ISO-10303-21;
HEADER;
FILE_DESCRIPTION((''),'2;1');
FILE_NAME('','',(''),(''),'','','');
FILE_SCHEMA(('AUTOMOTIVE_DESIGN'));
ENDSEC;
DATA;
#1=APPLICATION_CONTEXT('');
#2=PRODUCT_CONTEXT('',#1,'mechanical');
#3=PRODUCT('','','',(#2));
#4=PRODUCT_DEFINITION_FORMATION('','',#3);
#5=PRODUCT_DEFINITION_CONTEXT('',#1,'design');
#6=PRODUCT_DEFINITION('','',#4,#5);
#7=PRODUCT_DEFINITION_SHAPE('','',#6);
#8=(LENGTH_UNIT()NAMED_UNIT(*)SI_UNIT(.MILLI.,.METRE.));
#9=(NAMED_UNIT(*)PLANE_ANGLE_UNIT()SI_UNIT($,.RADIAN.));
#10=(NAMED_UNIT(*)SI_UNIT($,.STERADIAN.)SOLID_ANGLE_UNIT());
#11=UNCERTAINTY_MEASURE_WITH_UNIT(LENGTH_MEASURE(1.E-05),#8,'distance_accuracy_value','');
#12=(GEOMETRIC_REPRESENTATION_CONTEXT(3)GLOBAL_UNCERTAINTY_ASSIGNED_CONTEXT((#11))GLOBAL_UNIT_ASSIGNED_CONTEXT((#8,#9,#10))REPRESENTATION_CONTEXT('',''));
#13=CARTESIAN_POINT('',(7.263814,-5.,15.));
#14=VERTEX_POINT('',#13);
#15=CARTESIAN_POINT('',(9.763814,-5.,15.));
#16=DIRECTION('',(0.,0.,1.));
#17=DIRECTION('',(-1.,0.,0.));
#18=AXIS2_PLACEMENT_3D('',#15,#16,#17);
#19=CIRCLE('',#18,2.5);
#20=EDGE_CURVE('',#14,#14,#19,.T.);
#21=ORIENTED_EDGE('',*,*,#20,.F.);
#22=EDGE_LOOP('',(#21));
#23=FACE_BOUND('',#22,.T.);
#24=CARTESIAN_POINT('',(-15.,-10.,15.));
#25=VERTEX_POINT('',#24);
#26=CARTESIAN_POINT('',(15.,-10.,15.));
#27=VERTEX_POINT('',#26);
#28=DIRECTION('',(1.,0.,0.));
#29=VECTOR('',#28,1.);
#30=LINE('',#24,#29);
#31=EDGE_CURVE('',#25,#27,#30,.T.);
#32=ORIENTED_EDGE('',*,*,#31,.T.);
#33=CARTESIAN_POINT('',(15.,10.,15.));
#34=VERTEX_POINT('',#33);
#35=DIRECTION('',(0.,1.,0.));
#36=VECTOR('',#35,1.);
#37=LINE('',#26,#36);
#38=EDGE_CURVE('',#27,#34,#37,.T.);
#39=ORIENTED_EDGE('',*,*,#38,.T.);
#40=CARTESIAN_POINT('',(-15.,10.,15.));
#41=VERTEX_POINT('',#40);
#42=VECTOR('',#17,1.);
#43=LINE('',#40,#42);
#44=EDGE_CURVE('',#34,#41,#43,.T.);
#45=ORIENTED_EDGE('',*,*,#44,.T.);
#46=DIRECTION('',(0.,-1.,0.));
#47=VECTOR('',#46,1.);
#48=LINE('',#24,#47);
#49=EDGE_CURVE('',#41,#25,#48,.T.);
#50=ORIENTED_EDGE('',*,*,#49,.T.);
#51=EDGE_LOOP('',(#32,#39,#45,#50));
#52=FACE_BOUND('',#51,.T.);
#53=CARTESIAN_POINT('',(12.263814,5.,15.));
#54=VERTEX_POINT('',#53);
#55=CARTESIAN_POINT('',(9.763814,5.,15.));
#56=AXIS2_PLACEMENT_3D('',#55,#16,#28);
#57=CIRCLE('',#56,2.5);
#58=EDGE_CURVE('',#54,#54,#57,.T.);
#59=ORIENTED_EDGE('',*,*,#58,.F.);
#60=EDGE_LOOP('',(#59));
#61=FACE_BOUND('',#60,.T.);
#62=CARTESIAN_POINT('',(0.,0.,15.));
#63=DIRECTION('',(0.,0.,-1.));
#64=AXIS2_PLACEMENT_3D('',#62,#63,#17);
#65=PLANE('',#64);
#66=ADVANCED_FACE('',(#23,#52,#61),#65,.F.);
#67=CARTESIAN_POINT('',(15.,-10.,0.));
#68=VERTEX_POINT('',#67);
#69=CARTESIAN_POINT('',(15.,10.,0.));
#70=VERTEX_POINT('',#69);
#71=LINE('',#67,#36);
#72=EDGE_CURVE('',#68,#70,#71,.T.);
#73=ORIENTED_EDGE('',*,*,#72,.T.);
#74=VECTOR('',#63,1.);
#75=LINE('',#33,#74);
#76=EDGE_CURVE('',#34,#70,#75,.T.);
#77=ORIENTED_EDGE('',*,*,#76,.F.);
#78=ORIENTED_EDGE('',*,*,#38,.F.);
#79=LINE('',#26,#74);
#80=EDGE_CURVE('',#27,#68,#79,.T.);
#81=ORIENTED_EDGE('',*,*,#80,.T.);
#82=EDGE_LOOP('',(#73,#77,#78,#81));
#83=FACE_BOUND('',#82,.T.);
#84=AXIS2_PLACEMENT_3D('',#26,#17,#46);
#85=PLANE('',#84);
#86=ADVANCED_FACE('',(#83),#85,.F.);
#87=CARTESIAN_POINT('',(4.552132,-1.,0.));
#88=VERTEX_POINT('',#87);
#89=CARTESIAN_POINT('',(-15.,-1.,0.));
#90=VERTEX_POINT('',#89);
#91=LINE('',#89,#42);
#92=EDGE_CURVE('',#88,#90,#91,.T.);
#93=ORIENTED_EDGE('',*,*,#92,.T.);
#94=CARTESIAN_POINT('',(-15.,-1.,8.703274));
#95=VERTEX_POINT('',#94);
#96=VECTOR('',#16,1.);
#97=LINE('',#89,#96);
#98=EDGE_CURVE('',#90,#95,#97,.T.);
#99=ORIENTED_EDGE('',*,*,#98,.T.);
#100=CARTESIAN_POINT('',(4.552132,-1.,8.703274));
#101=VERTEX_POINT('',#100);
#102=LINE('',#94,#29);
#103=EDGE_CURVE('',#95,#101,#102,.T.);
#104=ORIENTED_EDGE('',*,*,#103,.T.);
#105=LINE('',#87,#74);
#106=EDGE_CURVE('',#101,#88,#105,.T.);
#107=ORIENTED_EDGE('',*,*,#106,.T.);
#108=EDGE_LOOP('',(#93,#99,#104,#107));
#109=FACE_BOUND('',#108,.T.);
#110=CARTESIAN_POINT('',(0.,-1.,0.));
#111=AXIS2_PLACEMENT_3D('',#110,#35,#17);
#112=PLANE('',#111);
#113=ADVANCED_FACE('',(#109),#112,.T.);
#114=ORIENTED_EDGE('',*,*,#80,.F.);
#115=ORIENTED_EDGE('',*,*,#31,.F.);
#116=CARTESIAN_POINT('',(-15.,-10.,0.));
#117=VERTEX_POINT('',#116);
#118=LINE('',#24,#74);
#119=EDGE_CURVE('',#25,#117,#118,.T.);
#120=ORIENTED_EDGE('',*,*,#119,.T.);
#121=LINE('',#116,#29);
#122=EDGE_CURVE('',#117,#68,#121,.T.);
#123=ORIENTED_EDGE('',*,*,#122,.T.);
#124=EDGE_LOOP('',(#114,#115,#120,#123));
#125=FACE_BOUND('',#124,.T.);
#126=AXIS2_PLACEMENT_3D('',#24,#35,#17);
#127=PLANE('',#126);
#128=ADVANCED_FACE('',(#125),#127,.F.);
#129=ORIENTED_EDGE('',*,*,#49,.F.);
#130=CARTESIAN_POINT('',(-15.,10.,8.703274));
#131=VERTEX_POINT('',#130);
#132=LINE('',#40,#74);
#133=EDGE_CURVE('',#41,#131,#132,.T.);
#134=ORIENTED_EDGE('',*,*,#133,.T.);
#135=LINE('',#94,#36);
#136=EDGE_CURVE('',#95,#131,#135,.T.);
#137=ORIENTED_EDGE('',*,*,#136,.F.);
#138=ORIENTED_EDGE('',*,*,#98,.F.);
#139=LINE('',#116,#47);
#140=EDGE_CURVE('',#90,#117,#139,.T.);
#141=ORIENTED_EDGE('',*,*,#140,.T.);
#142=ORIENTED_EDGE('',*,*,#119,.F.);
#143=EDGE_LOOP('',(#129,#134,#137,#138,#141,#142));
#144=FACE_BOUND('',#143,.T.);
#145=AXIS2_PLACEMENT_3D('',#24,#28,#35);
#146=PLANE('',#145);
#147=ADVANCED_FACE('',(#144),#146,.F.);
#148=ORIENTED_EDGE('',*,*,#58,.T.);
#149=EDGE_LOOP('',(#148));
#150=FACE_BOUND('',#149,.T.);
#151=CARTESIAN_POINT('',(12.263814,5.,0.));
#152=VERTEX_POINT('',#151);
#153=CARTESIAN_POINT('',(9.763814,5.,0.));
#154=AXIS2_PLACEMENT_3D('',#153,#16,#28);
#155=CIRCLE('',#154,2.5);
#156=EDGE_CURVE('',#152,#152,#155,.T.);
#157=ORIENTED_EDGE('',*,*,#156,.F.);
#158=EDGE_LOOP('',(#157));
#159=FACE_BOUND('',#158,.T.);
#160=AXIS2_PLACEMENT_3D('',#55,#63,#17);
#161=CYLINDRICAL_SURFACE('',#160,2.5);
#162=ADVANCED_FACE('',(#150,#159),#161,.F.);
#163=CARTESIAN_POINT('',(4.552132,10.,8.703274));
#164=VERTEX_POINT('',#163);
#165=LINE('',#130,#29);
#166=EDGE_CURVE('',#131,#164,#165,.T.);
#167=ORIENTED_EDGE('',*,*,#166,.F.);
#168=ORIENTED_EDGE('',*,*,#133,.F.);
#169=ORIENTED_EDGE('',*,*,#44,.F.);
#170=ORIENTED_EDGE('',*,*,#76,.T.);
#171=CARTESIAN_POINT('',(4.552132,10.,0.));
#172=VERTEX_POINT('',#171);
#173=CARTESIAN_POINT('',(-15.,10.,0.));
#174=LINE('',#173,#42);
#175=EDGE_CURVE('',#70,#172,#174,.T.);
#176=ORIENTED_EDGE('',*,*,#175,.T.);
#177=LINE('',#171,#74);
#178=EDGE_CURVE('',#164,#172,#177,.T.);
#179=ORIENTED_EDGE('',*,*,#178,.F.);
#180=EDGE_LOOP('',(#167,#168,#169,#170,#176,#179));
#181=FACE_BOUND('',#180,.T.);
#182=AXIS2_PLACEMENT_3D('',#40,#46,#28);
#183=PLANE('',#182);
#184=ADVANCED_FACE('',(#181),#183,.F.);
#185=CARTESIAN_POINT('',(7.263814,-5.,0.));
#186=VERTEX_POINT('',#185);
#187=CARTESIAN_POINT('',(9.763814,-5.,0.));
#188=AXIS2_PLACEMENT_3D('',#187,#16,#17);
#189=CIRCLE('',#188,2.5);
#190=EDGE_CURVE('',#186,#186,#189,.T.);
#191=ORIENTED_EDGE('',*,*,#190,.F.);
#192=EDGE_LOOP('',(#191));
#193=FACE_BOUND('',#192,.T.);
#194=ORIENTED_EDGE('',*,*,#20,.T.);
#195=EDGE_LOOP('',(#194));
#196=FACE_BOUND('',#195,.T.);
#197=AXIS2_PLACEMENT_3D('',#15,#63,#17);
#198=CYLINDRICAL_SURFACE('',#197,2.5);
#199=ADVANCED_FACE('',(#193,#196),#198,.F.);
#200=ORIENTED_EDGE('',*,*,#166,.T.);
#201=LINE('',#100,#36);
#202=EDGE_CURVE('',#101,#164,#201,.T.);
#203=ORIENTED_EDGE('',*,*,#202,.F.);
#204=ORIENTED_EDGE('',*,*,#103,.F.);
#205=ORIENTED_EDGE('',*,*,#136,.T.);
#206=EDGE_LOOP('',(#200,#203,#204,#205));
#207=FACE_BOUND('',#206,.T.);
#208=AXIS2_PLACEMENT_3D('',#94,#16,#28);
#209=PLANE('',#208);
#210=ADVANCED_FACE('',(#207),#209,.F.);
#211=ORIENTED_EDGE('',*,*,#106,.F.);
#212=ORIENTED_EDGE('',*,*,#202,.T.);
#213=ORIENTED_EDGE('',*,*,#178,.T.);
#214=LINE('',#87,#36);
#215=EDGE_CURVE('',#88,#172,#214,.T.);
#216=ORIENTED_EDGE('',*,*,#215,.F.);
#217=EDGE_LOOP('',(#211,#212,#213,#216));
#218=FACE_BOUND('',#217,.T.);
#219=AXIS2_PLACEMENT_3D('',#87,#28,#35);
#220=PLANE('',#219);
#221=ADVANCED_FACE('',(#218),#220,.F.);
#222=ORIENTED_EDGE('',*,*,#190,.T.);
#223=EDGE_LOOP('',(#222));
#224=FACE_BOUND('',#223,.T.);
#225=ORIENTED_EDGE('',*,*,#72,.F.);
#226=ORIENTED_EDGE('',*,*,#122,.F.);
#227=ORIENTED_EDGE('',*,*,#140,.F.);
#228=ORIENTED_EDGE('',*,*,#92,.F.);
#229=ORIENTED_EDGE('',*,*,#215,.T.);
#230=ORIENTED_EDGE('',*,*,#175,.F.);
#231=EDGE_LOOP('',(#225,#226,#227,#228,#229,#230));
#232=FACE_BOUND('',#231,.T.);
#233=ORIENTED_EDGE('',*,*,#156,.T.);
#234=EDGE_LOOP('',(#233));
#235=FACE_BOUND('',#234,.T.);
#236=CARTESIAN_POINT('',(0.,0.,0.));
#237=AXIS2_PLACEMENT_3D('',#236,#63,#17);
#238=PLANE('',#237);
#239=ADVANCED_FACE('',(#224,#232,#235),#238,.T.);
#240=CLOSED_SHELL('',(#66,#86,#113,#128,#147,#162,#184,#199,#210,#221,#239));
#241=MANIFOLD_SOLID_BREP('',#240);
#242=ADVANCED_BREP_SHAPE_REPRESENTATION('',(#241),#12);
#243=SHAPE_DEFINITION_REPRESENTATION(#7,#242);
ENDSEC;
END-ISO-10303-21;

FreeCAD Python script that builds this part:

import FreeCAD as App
import Part
import Sketcher


def add_polygon(sketch, points):
    """Adds a closed chain of lines whose ends are joined by coincident constraints."""
    first, n = sketch.GeometryCount, len(points)
    for a, b in zip(points, points[1:] + points[:1]):
        sketch.addGeometry(Part.LineSegment(App.Vector(*a, 0), App.Vector(*b, 0)), False)
    for i in range(n):
        sketch.addConstraint(Sketcher.Constraint("Coincident", first + i, 2, first + (i + 1) % n, 1))

doc = App.newDocument("Part")
body = doc.addObject("PartDesign::Body", "Body")

# Sketch on XY plane
sketch1 = body.newObject("Sketcher::SketchObject", "Sketch")
sketch1.AttachmentSupport = (doc.getObject("XY_Plane"), [""])
sketch1.MapMode = "FlatFace"
add_polygon(sketch1, [(-15, 10), (-15, -10), (15, -10), (15, 10)])  # lines 0-3
sketch1.addGeometry(Part.Circle(App.Vector(9.8, -5, 0), App.Vector(0, 0, 1), 2.5), False)  # 4
sketch1.addGeometry(Part.Circle(App.Vector(9.8, 5, 0), App.Vector(0, 0, 1), 2.5), False)  # 5
sketch1.addConstraint(Sketcher.Constraint("Vertical", 0))
sketch1.addConstraint(Sketcher.Constraint("Horizontal", 1))
sketch1.addConstraint(Sketcher.Constraint("Vertical", 2))
sketch1.addConstraint(Sketcher.Constraint("Horizontal", 3))
sketch1.addConstraint(Sketcher.Constraint("Equal", 4, 5))
sketch1.addConstraint(Sketcher.Constraint("Symmetric", 0, 2, 2, 2, -1, 1))
sketch1.addConstraint(Sketcher.Constraint("Symmetric", 4, 3, 5, 3, -1))
sketch1.addConstraint(Sketcher.Constraint("Diameter", 4, 5.0))
sketch1.addConstraint(Sketcher.Constraint("DistanceX", 1, 1, 1, 2, 30.0))
sketch1.addConstraint(Sketcher.Constraint("DistanceY", 0, 2, 0, 1, 20.0))
sketch1.addConstraint(Sketcher.Constraint("DistanceY", 4, 3, -1, 1, 5.0))
sketch1.addConstraint(Sketcher.Constraint("DistanceX", -1, 1, 4, 3, 9.763814))
pad1 = body.newObject("PartDesign::Pad", "Pad")
pad1.Profile = sketch1
pad1.Length = 15

# Sketch on XZ plane
sketch2 = body.newObject("Sketcher::SketchObject", "Sketch001")
sketch2.AttachmentSupport = (doc.getObject("XZ_Plane"), [""])
sketch2.MapMode = "FlatFace"
sketch2.AttachmentOffset = App.Placement(App.Vector(0, 0, -10), App.Rotation())
add_polygon(sketch2, [(-15, 0), (-15, 9), (5, 9), (5, 0)])  # lines 0-3
sketch2.addConstraint(Sketcher.Constraint("Vertical", 0))
sketch2.addConstraint(Sketcher.Constraint("Horizontal", 1))
sketch2.addConstraint(Sketcher.Constraint("Vertical", 2))
sketch2.addConstraint(Sketcher.Constraint("Horizontal", 3))
sketch2.addConstraint(Sketcher.Constraint("PointOnObject", 2, 2, -1))
sketch2.addConstraint(Sketcher.Constraint("DistanceX", 0, 2, -1, 1, 15.0))
sketch2.addConstraint(Sketcher.Constraint("DistanceX", 1, 1, 1, 2, 19.552132))
sketch2.addConstraint(Sketcher.Constraint("DistanceY", 0, 1, 0, 2, 8.703274))
pocket1 = body.newObject("PartDesign::Pocket", "Pocket")
pocket1.Profile = sketch2
pocket1.Length = 11
pocket1.Reversed = True

doc.recompute()
